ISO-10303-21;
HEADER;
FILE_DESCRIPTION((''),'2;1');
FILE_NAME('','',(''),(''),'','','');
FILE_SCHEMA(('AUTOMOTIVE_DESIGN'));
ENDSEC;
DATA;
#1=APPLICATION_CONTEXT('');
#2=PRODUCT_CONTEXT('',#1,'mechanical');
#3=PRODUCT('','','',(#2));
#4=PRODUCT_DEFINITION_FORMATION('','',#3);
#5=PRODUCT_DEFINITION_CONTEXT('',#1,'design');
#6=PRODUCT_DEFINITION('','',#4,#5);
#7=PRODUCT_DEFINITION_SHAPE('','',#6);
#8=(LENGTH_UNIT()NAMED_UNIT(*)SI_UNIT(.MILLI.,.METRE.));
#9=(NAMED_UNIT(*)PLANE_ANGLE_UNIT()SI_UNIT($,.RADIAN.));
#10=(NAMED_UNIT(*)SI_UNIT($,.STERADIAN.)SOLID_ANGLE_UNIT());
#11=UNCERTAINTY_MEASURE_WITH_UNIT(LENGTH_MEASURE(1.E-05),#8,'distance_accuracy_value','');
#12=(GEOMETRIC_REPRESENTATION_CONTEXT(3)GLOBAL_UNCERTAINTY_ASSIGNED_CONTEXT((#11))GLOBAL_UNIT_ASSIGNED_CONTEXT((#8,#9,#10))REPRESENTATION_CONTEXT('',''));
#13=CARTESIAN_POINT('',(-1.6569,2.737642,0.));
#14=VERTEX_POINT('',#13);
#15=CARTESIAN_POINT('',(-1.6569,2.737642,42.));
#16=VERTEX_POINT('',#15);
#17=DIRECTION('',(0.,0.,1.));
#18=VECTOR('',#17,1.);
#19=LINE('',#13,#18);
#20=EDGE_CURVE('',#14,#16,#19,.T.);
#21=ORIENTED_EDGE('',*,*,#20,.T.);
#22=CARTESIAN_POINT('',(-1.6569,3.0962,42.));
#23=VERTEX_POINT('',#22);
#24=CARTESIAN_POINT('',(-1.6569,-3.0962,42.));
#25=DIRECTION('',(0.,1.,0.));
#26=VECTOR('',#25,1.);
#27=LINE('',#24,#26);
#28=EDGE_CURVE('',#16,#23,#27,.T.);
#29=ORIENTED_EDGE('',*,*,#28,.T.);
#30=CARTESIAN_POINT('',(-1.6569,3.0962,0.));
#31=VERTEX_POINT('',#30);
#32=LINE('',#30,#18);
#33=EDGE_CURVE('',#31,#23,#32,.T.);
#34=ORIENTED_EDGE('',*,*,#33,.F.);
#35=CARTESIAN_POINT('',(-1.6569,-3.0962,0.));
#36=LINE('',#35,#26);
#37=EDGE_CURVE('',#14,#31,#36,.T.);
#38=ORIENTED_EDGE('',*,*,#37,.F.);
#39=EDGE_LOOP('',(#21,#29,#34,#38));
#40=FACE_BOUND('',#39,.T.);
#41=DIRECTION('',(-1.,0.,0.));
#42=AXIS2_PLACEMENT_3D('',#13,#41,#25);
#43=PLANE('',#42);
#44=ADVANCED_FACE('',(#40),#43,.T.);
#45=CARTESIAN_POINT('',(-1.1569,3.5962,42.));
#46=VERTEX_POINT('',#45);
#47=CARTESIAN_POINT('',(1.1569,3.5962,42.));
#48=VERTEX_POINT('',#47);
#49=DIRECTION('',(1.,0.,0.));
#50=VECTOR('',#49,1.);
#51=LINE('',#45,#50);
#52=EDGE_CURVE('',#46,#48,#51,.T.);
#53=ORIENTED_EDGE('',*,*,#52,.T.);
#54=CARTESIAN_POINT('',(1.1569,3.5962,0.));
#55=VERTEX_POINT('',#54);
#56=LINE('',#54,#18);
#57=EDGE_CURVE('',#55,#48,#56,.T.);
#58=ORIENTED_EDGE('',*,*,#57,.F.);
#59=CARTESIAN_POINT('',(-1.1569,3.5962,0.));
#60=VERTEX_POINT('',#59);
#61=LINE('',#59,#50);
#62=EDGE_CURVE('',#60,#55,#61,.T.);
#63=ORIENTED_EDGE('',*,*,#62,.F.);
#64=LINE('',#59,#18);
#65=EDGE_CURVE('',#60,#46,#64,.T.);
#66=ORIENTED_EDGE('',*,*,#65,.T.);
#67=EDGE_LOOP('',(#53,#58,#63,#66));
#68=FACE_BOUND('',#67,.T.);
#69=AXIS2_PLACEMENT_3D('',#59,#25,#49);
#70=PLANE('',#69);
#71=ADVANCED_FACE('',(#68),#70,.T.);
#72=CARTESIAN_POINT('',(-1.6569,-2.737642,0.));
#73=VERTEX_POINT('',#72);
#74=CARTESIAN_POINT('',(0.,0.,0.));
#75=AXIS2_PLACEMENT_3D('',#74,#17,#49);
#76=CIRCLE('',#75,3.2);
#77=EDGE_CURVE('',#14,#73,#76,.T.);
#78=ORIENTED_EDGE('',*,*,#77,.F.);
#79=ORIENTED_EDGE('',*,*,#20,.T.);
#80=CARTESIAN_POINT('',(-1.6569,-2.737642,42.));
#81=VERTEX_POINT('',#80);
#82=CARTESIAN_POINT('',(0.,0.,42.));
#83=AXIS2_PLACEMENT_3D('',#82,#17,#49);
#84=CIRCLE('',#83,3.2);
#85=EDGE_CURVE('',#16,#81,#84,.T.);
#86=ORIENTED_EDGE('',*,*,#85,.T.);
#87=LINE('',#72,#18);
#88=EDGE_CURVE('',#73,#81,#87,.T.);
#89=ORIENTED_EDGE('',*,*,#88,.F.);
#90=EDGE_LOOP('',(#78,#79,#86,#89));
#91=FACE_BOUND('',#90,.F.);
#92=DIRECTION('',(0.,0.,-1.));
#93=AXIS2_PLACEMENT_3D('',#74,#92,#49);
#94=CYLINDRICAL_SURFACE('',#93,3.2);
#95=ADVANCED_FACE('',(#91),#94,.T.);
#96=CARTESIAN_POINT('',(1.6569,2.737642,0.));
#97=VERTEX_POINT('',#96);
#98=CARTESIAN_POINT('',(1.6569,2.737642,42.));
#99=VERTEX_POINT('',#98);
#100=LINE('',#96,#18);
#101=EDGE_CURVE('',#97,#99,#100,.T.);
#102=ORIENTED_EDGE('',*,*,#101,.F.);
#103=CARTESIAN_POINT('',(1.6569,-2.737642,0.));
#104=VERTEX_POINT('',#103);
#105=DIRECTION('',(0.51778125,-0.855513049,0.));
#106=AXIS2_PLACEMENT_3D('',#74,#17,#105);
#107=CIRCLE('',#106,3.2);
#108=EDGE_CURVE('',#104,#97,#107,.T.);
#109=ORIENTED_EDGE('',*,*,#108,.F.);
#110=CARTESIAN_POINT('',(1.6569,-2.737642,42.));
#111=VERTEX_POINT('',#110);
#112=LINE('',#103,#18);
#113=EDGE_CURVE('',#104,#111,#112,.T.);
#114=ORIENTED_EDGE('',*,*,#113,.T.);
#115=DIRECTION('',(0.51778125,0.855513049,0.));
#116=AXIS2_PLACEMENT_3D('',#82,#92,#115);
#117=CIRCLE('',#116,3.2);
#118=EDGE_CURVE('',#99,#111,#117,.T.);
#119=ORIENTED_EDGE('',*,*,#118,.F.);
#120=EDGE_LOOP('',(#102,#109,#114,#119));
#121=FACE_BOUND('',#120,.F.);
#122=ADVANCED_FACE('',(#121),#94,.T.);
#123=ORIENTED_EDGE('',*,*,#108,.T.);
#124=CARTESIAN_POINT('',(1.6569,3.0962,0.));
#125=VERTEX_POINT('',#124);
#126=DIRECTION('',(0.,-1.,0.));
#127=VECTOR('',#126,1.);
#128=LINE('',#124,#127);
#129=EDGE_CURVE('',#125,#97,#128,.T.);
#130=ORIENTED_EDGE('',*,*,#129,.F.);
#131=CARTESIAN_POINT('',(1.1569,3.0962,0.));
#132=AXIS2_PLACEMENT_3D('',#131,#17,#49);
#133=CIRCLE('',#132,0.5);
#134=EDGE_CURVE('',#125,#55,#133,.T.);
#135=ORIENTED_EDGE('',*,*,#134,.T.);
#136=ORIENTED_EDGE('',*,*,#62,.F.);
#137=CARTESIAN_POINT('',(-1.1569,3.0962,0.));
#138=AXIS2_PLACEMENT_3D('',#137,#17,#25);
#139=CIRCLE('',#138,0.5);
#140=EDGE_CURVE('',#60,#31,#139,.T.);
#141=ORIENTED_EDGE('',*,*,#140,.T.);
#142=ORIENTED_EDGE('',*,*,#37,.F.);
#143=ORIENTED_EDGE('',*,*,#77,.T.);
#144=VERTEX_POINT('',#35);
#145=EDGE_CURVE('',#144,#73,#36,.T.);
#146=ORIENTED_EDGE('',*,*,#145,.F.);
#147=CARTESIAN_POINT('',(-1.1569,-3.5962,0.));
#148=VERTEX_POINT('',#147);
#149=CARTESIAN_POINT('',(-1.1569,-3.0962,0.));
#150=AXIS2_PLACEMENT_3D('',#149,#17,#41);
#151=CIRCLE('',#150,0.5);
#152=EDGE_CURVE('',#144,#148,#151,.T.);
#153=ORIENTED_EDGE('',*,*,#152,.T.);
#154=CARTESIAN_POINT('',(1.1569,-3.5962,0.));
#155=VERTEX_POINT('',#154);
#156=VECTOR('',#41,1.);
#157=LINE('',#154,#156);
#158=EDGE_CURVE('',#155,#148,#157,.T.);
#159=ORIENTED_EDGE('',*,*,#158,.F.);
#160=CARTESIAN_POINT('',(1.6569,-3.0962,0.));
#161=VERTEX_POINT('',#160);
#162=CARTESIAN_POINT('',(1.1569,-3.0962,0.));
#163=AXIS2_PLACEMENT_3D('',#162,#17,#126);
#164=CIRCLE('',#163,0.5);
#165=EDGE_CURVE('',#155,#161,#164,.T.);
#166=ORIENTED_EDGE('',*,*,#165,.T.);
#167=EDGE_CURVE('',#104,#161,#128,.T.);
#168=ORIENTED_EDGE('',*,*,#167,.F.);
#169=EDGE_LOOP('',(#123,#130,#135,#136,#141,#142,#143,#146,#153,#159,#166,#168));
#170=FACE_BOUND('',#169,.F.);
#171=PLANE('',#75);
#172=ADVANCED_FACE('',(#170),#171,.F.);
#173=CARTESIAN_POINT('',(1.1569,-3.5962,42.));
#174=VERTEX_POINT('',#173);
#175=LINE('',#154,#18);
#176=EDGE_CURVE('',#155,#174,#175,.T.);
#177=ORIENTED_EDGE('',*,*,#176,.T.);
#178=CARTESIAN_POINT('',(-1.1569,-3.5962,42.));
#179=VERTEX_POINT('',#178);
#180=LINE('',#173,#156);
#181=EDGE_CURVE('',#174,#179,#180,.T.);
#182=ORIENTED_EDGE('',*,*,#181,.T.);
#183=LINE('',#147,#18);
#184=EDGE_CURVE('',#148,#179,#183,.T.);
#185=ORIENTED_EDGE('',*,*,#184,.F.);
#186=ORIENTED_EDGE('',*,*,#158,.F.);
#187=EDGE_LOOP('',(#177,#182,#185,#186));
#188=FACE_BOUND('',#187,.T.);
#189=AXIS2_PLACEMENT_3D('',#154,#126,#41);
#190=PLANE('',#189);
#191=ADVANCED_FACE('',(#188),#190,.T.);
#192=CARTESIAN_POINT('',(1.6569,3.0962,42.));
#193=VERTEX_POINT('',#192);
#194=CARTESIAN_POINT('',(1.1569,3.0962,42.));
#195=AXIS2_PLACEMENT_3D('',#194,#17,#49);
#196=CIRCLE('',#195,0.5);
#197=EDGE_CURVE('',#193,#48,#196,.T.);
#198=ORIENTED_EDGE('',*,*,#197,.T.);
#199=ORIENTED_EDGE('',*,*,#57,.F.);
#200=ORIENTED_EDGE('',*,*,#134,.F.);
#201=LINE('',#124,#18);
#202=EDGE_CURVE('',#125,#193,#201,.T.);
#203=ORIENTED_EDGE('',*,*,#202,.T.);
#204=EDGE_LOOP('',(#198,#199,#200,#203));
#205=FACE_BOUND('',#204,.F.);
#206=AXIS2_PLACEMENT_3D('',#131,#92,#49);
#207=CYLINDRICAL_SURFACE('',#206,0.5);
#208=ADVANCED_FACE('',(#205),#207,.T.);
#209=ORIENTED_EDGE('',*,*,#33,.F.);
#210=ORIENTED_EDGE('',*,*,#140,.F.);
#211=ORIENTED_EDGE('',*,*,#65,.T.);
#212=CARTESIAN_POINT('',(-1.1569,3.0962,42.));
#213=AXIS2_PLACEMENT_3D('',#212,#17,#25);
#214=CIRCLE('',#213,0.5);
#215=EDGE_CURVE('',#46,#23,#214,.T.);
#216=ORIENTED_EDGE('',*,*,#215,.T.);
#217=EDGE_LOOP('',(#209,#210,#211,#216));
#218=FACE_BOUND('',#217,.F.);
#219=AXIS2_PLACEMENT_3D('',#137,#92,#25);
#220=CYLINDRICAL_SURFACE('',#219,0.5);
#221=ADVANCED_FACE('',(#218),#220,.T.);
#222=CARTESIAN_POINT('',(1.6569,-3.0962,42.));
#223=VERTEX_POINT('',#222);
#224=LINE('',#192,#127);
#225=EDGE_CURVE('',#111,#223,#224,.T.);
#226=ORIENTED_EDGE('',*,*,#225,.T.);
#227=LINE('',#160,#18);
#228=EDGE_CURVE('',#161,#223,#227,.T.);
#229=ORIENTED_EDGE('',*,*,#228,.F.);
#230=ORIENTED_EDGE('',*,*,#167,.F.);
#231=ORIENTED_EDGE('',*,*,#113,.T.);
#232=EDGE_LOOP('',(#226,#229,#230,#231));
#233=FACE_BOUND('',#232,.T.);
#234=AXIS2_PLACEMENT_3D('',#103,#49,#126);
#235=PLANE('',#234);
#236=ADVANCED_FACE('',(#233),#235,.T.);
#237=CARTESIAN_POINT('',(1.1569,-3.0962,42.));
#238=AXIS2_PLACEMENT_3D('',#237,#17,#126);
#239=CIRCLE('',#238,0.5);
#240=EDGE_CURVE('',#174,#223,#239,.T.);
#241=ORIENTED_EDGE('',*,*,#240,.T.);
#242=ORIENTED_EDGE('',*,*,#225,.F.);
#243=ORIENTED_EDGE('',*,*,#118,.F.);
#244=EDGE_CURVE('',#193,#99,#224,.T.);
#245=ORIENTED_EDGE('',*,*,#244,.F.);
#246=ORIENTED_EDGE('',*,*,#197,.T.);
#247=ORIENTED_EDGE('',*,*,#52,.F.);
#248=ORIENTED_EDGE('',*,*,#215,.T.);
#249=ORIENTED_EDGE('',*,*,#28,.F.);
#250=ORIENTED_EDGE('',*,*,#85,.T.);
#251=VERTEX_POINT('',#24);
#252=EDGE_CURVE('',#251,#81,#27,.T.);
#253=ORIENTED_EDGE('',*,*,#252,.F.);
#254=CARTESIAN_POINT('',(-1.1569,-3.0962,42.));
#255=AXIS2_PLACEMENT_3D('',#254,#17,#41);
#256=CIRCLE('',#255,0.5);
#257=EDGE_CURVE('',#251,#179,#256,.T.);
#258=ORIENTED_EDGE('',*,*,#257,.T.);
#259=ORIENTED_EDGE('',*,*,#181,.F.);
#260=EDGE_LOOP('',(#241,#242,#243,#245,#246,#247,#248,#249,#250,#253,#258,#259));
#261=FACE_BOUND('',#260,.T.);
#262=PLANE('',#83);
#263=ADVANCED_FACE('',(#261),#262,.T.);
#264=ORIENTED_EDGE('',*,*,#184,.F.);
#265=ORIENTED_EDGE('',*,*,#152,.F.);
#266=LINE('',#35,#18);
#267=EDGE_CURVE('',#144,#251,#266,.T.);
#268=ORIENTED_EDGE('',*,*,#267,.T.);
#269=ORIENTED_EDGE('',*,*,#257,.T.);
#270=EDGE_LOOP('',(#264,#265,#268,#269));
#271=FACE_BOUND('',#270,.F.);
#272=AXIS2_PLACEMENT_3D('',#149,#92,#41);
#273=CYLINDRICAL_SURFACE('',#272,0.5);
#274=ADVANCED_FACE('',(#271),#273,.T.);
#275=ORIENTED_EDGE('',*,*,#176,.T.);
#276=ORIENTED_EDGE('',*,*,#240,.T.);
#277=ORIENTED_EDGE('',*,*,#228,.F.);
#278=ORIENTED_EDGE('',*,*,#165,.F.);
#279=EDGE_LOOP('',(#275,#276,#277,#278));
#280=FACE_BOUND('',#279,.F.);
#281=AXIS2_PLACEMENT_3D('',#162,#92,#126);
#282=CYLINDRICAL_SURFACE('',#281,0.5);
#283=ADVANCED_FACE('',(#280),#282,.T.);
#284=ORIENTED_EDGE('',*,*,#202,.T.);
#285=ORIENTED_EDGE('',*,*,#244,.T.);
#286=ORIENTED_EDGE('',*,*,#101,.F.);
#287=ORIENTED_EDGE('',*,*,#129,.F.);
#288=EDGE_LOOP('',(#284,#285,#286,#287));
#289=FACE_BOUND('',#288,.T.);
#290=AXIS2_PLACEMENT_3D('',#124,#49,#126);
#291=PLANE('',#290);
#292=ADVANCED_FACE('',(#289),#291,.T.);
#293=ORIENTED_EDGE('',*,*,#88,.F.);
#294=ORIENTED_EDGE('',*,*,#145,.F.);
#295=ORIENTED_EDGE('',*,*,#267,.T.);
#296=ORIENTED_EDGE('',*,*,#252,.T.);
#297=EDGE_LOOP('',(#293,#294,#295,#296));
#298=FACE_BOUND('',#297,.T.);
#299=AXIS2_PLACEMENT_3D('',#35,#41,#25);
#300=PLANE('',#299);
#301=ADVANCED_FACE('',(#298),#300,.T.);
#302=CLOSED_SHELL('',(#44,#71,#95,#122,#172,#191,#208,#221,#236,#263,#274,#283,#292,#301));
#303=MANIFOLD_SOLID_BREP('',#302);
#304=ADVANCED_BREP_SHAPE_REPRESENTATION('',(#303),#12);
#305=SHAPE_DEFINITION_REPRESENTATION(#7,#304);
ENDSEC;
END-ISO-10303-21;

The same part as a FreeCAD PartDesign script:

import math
import FreeCAD as App
import Part
import Sketcher
from FreeCAD import Vector
Q = App.Units.Quantity

doc = App.newDocument("Part")
body = doc.addObject("PartDesign::Body", "Body")

# Sketch on XY plane
sketch1 = body.newObject("Sketcher::SketchObject", "Sketch")
sketch1.AttachmentSupport = (doc.getObject("XY_Plane"), [""])
sketch1.MapMode = "FlatFace"
sketch1.addGeometry(Part.ArcOfCircle(Part.Circle(Vector(0, 0, 0), Vector(0, 0, 1), 3.2), math.radians(-59), math.radians(59)), False)
sketch1.addGeometry(Part.LineSegment(Vector(1.66, 2.74, 0), Vector(1.66, 3.1, 0)), False)
sketch1.addGeometry(Part.ArcOfCircle(Part.Circle(Vector(1.16, 3.1, 0), Vector(0, 0, 1), 0.5), math.radians(0), math.radians(90)), False)
sketch1.addGeometry(Part.LineSegment(Vector(1.16, 3.6, 0), Vector(-1.16, 3.6, 0)), False)
sketch1.addGeometry(Part.ArcOfCircle(Part.Circle(Vector(-1.16, 3.1, 0), Vector(0, 0, 1), 0.5), math.radians(90), math.radians(180)), False)
sketch1.addGeometry(Part.LineSegment(Vector(-1.66, 3.1, 0), Vector(-1.66, 2.74, 0)), False)
sketch1.addGeometry(Part.ArcOfCircle(Part.Circle(Vector(0, 0, 0), Vector(0, 0, 1), 3.2), math.radians(121), math.radians(239)), False)
sketch1.addGeometry(Part.LineSegment(Vector(-1.66, -2.74, 0), Vector(-1.66, -3.1, 0)), False)
sketch1.addGeometry(Part.ArcOfCircle(Part.Circle(Vector(-1.16, -3.1, 0), Vector(0, 0, 1), 0.5), math.radians(180), math.radians(270)), False)
sketch1.addGeometry(Part.LineSegment(Vector(-1.16, -3.6, 0), Vector(1.16, -3.6, 0)), False)
sketch1.addGeometry(Part.ArcOfCircle(Part.Circle(Vector(1.16, -3.1, 0), Vector(0, 0, 1), 0.5), math.radians(-90), math.radians(0)), False)
sketch1.addGeometry(Part.LineSegment(Vector(1.66, -3.1, 0), Vector(1.66, -2.74, 0)), False)
sketch1.addConstraint(Sketcher.Constraint("Coincident", 0, 2, 1, 1))
sketch1.addConstraint(Sketcher.Constraint("Tangent", 1, 2, 2, 1))
sketch1.addConstraint(Sketcher.Constraint("Tangent", 2, 2, 3, 1))
sketch1.addConstraint(Sketcher.Constraint("Tangent", 3, 2, 4, 1))
sketch1.addConstraint(Sketcher.Constraint("Tangent", 4, 2, 5, 1))
sketch1.addConstraint(Sketcher.Constraint("Coincident", 5, 2, 6, 1))
sketch1.addConstraint(Sketcher.Constraint("Coincident", 6, 2, 7, 1))
sketch1.addConstraint(Sketcher.Constraint("Tangent", 7, 2, 8, 1))
sketch1.addConstraint(Sketcher.Constraint("Tangent", 8, 2, 9, 1))
sketch1.addConstraint(Sketcher.Constraint("Tangent", 9, 2, 10, 1))
sketch1.addConstraint(Sketcher.Constraint("Tangent", 10, 2, 11, 1))
sketch1.addConstraint(Sketcher.Constraint("Coincident", 11, 2, 0, 1))
sketch1.addConstraint(Sketcher.Constraint("Vertical", 1))
sketch1.addConstraint(Sketcher.Constraint("Horizontal", 3))
sketch1.addConstraint(Sketcher.Constraint("Vertical", 5))
sketch1.addConstraint(Sketcher.Constraint("Vertical", 7))
sketch1.addConstraint(Sketcher.Constraint("Horizontal", 9))
sketch1.addConstraint(Sketcher.Constraint("Vertical", 11))
sketch1.addConstraint(Sketcher.Constraint("Coincident", 0, 3, -1, 1))
sketch1.addConstraint(Sketcher.Constraint("Coincident", 6, 3, -1, 1))
sketch1.addConstraint(Sketcher.Constraint("Equal", 2, 4))
sketch1.addConstraint(Sketcher.Constraint("Equal", 0, 6))
sketch1.addConstraint(Sketcher.Constraint("Equal", 4, 8))
sketch1.addConstraint(Sketcher.Constraint("Equal", 8, 10))
sketch1.addConstraint(Sketcher.Constraint("Symmetric", 2, 3, 8, 3, -1, 1))
sketch1.addConstraint(Sketcher.Constraint("Horizontal", 0, 2, 5, 2))
sketch1.addConstraint(Sketcher.Constraint("Horizontal", 6, 2, 11, 2))
sketch1.addConstraint(Sketcher.Constraint("Radius", 0, Q("3.2 mm")))
sketch1.addConstraint(Sketcher.Constraint("Radius", 2, Q("0.5 mm")))
sketch1.addConstraint(Sketcher.Constraint("DistanceX", 4, 2, 1, 2, Q("3.3138 mm")))
sketch1.addConstraint(Sketcher.Constraint("DistanceY", 1, 1, 1, 2, Q("0.3586 mm")))
pad1 = body.newObject("PartDesign::Pad", "Pad")
pad1.Profile = sketch1
pad1.Length = 42

doc.recompute()
